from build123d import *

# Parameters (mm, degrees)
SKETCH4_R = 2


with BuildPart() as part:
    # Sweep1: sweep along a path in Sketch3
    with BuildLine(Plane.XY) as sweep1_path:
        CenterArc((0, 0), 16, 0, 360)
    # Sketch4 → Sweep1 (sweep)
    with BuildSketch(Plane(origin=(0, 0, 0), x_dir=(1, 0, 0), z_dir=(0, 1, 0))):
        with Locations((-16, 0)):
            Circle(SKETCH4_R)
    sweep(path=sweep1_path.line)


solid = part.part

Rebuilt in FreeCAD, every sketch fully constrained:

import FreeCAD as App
import Part
import Sketcher

V = App.Vector

doc = App.newDocument("Part")
body = doc.addObject("PartDesign::Body", "Body")

# Sketch on XZ plane
sketch1 = doc.addObject("Sketcher::SketchObject", "Sketch")
body.addObject(sketch1)
sketch1.AttachmentSupport = (doc.XZ_Plane, [""])
sketch1.MapMode = "FlatFace"
sketch1.addGeometry(Part.Circle(V(-16, 0, 0), V(0, 0, 1), 2), False)
sketch1.addConstraint([
    Sketcher.Constraint("PointOnObject", 0, 3, -1),
    Sketcher.Constraint("Diameter", 0, 4.0),
    Sketcher.Constraint("DistanceX", 0, 3, -1, 1, 16.0),
])

# Sketch on XY plane
sketch2 = doc.addObject("Sketcher::SketchObject", "Sketch001")
body.addObject(sketch2)
sketch2.AttachmentSupport = (doc.XY_Plane, [""])
sketch2.MapMode = "FlatFace"
sketch2.addGeometry(Part.Circle(V(0, 0, 0), V(0, 0, 1), 16), False)
sketch2.addConstraint([
    Sketcher.Constraint("Coincident", 0, 3, -1, 1),
    Sketcher.Constraint("Diameter", 0, 32.0),
])
doc.recompute()

additivepipe = doc.addObject("PartDesign::AdditivePipe", "AdditivePipe")
body.addObject(additivepipe)
additivepipe.Profile = sketch1
additivepipe.Spine = (sketch2, ["Edge1"])

doc.recompute()
